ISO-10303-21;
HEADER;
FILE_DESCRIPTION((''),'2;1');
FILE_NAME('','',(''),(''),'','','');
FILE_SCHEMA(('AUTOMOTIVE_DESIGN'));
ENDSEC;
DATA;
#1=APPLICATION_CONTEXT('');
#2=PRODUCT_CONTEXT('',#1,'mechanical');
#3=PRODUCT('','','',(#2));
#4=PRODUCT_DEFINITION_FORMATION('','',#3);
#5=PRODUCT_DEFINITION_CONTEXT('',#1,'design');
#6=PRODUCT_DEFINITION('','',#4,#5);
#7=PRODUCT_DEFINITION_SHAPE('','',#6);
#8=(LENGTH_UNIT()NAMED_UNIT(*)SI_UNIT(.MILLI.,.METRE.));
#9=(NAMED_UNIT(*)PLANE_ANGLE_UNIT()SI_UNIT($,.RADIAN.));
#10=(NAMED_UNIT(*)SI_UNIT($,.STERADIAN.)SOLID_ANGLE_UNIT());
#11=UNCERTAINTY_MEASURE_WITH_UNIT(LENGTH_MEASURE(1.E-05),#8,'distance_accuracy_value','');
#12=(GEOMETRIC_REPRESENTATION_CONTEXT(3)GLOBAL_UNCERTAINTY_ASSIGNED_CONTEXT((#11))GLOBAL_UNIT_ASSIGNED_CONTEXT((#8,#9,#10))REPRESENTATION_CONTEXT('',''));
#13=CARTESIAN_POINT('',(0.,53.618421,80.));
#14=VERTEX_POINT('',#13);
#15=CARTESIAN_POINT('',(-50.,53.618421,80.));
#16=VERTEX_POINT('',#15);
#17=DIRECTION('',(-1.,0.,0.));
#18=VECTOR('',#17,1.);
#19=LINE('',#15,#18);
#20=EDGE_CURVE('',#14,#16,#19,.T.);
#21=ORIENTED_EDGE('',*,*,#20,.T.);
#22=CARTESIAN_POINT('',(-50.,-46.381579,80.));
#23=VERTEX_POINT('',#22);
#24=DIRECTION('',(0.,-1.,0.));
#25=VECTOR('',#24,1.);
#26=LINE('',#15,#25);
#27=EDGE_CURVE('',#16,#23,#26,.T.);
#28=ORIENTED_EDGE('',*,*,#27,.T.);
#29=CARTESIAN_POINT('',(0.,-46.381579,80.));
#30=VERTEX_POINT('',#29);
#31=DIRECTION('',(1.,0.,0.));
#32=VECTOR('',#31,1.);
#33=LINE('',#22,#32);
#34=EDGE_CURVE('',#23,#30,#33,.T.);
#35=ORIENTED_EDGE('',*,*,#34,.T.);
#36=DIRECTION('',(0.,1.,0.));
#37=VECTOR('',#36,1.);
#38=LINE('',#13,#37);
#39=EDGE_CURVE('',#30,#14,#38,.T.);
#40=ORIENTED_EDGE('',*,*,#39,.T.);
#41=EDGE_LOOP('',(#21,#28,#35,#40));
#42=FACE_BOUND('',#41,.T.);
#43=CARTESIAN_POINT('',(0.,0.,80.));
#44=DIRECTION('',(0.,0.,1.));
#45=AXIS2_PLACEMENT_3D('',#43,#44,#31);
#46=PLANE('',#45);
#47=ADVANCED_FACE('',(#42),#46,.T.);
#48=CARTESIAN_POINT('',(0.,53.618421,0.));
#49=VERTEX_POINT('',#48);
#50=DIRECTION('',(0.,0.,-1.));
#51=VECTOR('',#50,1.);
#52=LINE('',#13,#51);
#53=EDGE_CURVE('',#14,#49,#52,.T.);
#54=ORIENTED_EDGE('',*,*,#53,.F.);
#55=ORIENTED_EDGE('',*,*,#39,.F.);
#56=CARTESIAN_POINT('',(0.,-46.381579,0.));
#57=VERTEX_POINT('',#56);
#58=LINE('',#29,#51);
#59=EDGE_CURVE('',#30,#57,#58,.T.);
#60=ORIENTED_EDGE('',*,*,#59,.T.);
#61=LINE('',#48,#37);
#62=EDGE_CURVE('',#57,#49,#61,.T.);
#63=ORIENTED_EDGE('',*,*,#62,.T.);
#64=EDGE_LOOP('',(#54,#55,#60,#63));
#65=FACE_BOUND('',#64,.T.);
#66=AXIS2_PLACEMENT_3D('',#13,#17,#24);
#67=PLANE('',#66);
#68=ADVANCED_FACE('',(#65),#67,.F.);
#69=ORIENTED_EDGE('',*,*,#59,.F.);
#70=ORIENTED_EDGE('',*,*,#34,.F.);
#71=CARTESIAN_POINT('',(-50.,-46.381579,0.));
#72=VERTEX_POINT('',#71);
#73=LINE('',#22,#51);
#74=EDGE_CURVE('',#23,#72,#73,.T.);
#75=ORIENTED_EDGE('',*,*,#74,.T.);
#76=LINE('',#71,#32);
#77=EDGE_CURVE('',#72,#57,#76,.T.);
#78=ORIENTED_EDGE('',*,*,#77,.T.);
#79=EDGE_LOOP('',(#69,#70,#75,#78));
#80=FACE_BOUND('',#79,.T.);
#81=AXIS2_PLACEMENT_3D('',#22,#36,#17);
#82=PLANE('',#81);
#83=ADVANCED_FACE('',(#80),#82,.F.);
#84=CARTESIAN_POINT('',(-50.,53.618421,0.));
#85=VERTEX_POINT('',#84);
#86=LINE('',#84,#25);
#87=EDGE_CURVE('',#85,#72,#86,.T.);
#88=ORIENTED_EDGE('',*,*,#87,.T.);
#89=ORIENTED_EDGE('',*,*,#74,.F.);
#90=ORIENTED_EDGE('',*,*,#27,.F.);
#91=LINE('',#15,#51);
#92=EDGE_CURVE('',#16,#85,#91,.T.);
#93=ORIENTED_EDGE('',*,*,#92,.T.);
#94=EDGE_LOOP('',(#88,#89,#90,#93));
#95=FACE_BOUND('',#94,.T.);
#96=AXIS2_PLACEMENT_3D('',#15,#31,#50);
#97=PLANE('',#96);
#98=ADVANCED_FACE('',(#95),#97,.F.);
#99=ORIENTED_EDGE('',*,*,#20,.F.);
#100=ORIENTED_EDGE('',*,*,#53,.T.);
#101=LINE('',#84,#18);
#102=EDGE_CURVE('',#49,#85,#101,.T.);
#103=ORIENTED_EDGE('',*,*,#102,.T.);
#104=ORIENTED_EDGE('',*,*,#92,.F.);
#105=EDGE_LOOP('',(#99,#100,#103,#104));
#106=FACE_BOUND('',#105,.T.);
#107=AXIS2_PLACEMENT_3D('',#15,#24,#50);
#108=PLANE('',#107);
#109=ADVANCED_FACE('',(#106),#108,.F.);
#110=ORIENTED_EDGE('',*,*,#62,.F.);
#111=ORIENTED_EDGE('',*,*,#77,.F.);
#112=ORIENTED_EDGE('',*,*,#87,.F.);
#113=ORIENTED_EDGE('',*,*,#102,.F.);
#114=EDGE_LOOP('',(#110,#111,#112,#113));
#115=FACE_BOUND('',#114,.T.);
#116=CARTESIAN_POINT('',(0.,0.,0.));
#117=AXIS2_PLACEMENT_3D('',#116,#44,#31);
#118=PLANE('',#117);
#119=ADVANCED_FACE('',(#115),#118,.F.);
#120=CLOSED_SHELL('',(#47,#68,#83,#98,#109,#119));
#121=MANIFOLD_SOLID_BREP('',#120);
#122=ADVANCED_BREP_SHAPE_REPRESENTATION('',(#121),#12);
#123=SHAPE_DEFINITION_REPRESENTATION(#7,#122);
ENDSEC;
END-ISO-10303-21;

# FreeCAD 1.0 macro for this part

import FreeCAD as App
import Part
import Sketcher

V = App.Vector

doc = App.newDocument("Part")
params = doc.addObject("Spreadsheet::Sheet", "Params")
for row, (alias, value) in enumerate([
    ("sketch1_width", "50 mm"),
    ("sketch1_height", "100 mm"),
    ("pad1_length", "80 mm"),
], start=1):
    params.set(f"A{row}", alias)
    params.set(f"B{row}", "=" + value)
    params.setAlias(f"B{row}", alias)

body = doc.addObject("PartDesign::Body", "Body")

sketch1 = body.newObject("Sketcher::SketchObject", "Sketch")
sketch1.AttachmentSupport = (doc.getObject("XY_Plane"), [""])
sketch1.MapMode = "FlatFace"
sketch1.addGeometry([
    Part.LineSegment(V(-50, 54, 0), V(-50, -46, 0)),
    Part.LineSegment(V(-50, -46, 0), V(0, -46, 0)),
    Part.LineSegment(V(0, -46, 0), V(0, 54, 0)),
    Part.LineSegment(V(0, 54, 0), V(-50, 54, 0)),
], False)
sketch1.addConstraint([
    Sketcher.Constraint("Coincident", 0, 2, 1, 1),
    Sketcher.Constraint("Coincident", 1, 2, 2, 1),
    Sketcher.Constraint("Coincident", 2, 2, 3, 1),
    Sketcher.Constraint("Coincident", 3, 2, 0, 1),
    Sketcher.Constraint("Vertical", 0),
    Sketcher.Constraint("Horizontal", 1),
    Sketcher.Constraint("Vertical", 2),
    Sketcher.Constraint("Horizontal", 3),
    Sketcher.Constraint("PointOnObject", 1, 2, -2),
    Sketcher.Constraint("DistanceX", 1, 1, 1, 2, 50.0),
    Sketcher.Constraint("DistanceY", 0, 2, 0, 1, 100.0),
    Sketcher.Constraint("DistanceY", 0, 2, -1, 1, 46.381579),
])
sketch1.setExpression("Constraints[9]", "Params.sketch1_width")
sketch1.setExpression("Constraints[10]", "Params.sketch1_height")
pad1 = body.newObject("PartDesign::Pad", "Pad")
pad1.Profile = sketch1
pad1.setExpression("Length", "Params.pad1_length")

doc.recompute()
